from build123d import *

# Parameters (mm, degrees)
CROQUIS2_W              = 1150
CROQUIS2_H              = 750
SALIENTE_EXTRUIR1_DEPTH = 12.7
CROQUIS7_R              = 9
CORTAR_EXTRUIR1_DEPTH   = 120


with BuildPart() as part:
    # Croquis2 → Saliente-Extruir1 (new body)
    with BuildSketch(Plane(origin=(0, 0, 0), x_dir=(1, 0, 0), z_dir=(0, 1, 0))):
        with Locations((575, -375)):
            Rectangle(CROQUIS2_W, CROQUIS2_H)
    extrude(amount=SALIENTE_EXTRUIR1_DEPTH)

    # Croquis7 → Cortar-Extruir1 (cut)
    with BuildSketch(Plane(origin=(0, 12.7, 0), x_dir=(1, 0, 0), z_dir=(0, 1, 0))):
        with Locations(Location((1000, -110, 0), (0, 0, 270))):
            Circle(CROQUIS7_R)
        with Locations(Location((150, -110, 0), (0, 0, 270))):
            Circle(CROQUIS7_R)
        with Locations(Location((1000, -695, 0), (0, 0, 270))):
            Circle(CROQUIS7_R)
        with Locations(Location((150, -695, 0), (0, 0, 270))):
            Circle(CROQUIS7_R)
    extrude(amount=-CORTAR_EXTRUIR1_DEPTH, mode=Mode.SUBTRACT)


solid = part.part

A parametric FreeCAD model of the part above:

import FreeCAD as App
import Part
import Sketcher

V = App.Vector
Q = App.Units.Quantity


def add_polygon(sketch, points):
    """Adds a closed chain of lines whose ends are joined by coincident constraints."""
    first, n = sketch.GeometryCount, len(points)
    for a, b in zip(points, points[1:] + points[:1]):
        sketch.addGeometry(Part.LineSegment(App.Vector(*a, 0), App.Vector(*b, 0)), False)
    for i in range(n):
        sketch.addConstraint(Sketcher.Constraint("Coincident", first + i, 2, first + (i + 1) % n, 1))

doc = App.newDocument("Part")
body = doc.addObject("PartDesign::Body", "Body")

# Sketch on XZ plane
sketch1 = body.newObject("Sketcher::SketchObject", "Sketch")
sketch1.AttachmentSupport = (doc.getObject("XZ_Plane"), [""])
sketch1.MapMode = "FlatFace"
add_polygon(sketch1, [(0, 0), (0, 750), (1150, 750), (1150, 0)])  # lines 0-3
sketch1.addConstraint([
    Sketcher.Constraint("Vertical", 0),
    Sketcher.Constraint("Horizontal", 1),
    Sketcher.Constraint("Vertical", 2),
    Sketcher.Constraint("Horizontal", 3),
    Sketcher.Constraint("Coincident", 3, 2, -1, 1),
    Sketcher.Constraint("DistanceX", 1, 1, 1, 2, Q("1150 mm")),
    Sketcher.Constraint("DistanceY", 0, 1, 0, 2, Q("750 mm")),
])
pad1 = body.newObject("PartDesign::Pad", "Pad")
pad1.Profile = sketch1
pad1.Length = 12.7
pad1.Reversed = True

# Sketch on XZ plane
sketch2 = body.newObject("Sketcher::SketchObject", "Sketch001")
sketch2.AttachmentSupport = (doc.getObject("XZ_Plane"), [""])
sketch2.MapMode = "FlatFace"
sketch2.AttachmentOffset = App.Placement(V(0, 0, -12.7), App.Rotation())
sketch2.addGeometry([
    Part.Circle(V(1000, 110, 0), V(0, 0, 1), 9),
    Part.Circle(V(150, 110, 0), V(0, 0, 1), 9),
    Part.Circle(V(1000, 695, 0), V(0, 0, 1), 9),
    Part.Circle(V(150, 695, 0), V(0, 0, 1), 9),
], False)
sketch2.addConstraint([
    Sketcher.Constraint("Equal", 0, 1),
    Sketcher.Constraint("Equal", 1, 2),
    Sketcher.Constraint("Equal", 2, 3),
    Sketcher.Constraint("Horizontal", 0, 3, 1, 3),
    Sketcher.Constraint("Horizontal", 2, 3, 3, 3),
    Sketcher.Constraint("Vertical", 0, 3, 2, 3),
    Sketcher.Constraint("Vertical", 1, 3, 3, 3),
    Sketcher.Constraint("Diameter", 0, Q("18 mm")),
    Sketcher.Constraint("DistanceX", -1, 1, 0, 3, Q("1000 mm")),
    Sketcher.Constraint("DistanceY", -1, 1, 0, 3, Q("110 mm")),
    Sketcher.Constraint("DistanceX", -1, 1, 1, 3, Q("150 mm")),
    Sketcher.Constraint("DistanceY", -1, 1, 2, 3, Q("695 mm")),
])
pocket1 = body.newObject("PartDesign::Pocket", "Pocket")
pocket1.Profile = sketch2
pocket1.Length = 120
pocket1.Reversed = True

doc.recompute()
